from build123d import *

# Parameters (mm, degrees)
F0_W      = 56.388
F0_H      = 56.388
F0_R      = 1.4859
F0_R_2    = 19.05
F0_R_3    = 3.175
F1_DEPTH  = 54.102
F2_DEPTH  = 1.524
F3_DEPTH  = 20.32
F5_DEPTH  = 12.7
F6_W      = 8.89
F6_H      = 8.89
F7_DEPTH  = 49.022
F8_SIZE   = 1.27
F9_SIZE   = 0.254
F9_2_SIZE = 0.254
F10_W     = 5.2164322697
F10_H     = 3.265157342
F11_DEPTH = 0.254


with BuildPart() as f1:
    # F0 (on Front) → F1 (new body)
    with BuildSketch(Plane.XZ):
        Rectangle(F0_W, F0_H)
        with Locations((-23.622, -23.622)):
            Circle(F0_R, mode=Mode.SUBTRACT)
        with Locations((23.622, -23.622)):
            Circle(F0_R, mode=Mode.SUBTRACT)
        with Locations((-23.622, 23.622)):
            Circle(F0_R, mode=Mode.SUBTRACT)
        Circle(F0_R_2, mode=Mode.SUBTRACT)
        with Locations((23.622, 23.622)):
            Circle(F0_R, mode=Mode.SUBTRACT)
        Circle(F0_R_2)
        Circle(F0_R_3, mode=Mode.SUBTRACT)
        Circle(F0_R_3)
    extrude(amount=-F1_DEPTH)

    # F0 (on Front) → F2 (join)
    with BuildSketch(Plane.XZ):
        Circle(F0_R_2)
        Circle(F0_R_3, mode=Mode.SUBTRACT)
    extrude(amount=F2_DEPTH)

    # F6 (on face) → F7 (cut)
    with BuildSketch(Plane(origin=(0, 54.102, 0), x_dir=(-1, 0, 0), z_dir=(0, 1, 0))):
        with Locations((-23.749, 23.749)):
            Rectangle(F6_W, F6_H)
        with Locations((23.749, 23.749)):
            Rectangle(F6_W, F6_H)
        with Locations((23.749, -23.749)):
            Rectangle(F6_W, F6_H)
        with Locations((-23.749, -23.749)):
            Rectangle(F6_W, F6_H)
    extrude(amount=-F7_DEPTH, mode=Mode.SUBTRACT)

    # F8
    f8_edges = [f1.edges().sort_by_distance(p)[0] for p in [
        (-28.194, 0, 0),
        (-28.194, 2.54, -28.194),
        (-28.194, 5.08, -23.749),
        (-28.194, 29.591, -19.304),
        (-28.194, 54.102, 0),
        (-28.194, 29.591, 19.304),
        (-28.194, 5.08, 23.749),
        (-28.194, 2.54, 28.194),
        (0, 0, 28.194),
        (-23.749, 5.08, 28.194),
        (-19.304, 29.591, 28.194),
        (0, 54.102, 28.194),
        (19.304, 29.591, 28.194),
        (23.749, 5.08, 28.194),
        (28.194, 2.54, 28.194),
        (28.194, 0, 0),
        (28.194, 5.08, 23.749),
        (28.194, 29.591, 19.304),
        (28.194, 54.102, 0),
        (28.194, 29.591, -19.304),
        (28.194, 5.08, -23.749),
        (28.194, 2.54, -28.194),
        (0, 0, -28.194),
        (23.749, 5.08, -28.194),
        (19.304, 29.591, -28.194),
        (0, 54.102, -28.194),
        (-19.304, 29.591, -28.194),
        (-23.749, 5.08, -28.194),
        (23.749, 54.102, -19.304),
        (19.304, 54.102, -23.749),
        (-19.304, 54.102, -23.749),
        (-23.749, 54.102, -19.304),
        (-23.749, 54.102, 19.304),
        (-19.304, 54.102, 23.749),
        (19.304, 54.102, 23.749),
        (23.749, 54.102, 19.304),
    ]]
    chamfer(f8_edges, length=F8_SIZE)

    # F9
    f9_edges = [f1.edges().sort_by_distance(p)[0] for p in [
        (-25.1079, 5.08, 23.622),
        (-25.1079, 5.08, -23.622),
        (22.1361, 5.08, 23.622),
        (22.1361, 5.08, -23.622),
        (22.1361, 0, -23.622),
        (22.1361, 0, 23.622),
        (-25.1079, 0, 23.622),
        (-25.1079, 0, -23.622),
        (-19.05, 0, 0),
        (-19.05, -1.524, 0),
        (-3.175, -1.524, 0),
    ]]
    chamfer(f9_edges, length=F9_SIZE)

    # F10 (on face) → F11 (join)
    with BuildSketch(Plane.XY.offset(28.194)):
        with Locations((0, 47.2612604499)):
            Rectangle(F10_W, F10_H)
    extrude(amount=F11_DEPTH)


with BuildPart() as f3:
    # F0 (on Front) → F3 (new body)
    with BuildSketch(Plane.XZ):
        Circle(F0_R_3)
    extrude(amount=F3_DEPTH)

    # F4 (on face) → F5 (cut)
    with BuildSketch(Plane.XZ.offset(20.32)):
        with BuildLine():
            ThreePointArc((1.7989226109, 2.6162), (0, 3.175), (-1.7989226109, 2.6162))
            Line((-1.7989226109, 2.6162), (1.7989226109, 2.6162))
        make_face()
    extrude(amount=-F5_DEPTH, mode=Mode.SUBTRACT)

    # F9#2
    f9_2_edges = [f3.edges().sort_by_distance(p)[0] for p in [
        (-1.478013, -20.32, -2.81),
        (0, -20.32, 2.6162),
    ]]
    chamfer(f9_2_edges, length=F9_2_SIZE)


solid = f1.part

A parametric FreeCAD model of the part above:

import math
import FreeCAD as App
import Part
import Sketcher
Q = App.Units.Quantity


def edges_at(feature, points):
    """Names of the edges that pass closest to the given points."""
    edges = feature.Shape.Edges
    near = lambda p: min(range(len(edges)), key=lambda i: edges[i].distToShape(Part.Vertex(*p))[0])
    return sorted({f"Edge{near(p) + 1}" for p in points})


def add_polygon(sketch, points):
    """Adds a closed chain of lines whose ends are joined by coincident constraints."""
    first, n = sketch.GeometryCount, len(points)
    for a, b in zip(points, points[1:] + points[:1]):
        sketch.addGeometry(Part.LineSegment(App.Vector(*a, 0), App.Vector(*b, 0)), False)
    for i in range(n):
        sketch.addConstraint(Sketcher.Constraint("Coincident", first + i, 2, first + (i + 1) % n, 1))

doc = App.newDocument("Part")
body = doc.addObject("PartDesign::Body", "Body")

# Sketch on XZ plane
sketch1 = body.newObject("Sketcher::SketchObject", "Sketch")
sketch1.AttachmentSupport = (doc.getObject("XZ_Plane"), [""])
sketch1.MapMode = "FlatFace"
add_polygon(sketch1, [(-28.2, 28.2), (-28.2, -28.2), (28.2, -28.2), (28.2, 28.2)])  # lines 0-3
sketch1.addGeometry(Part.Circle(App.Vector(-23.6, -23.6, 0), App.Vector(0, 0, 1), 1.5), False)  # 4
sketch1.addGeometry(Part.Circle(App.Vector(23.6, -23.6, 0), App.Vector(0, 0, 1), 1.5), False)  # 5
sketch1.addGeometry(Part.Circle(App.Vector(-23.6, 23.6, 0), App.Vector(0, 0, 1), 1.5), False)  # 6
sketch1.addGeometry(Part.Circle(App.Vector(23.6, 23.6, 0), App.Vector(0, 0, 1), 1.5), False)  # 7
sketch1.addConstraint([
    Sketcher.Constraint("Vertical", 0),
    Sketcher.Constraint("Horizontal", 1),
    Sketcher.Constraint("Vertical", 2),
    Sketcher.Constraint("Horizontal", 3),
    Sketcher.Constraint("Equal", 4, 5),
    Sketcher.Constraint("Equal", 5, 6),
    Sketcher.Constraint("Equal", 6, 7),
    Sketcher.Constraint("Symmetric", 5, 3, 6, 3, -1, 1),
    Sketcher.Constraint("Symmetric", 4, 3, 7, 3, -1, 1),
    Sketcher.Constraint("Symmetric", 0, 2, 2, 2, -1, 1),
    Sketcher.Constraint("Symmetric", 4, 3, 5, 3, -2),
    Sketcher.Constraint("Equal", 3, 0),
    Sketcher.Constraint("Diameter", 4, Q("0.117 in")),
    Sketcher.Constraint("DistanceX", 1, 1, 1, 2, Q("2.22 in")),
    Sketcher.Constraint("DistanceX", 4, 3, -1, 1, Q("0.93 in")),
    Sketcher.Constraint("DistanceY", 4, 3, -1, 1, Q("0.93 in")),
])
pad1 = body.newObject("PartDesign::Pad", "Pad")
pad1.Profile = sketch1
pad1.Length = Q("2.13 in")
pad1.Reversed = True

# Sketch on XZ plane
sketch2 = body.newObject("Sketcher::SketchObject", "Sketch001")
sketch2.AttachmentSupport = (doc.getObject("XZ_Plane"), [""])
sketch2.MapMode = "FlatFace"
sketch2.addGeometry([
    Part.Circle(App.Vector(0, 0, 0), App.Vector(0, 0, 1), 19.1),
    Part.Circle(App.Vector(0, 0, 0), App.Vector(0, 0, 1), 3.2),
], False)
sketch2.addConstraint([
    Sketcher.Constraint("Coincident", 0, 3, -1, 1),
    Sketcher.Constraint("Coincident", 1, 3, -1, 1),
    Sketcher.Constraint("Diameter", 0, Q("1.5 in")),
    Sketcher.Constraint("Diameter", 1, Q("0.25 in")),
])
pad2 = body.newObject("PartDesign::Pad", "Pad001")
pad2.Profile = sketch2
pad2.Length = Q("0.06 in")

# Sketch on XZ plane
sketch3 = body.newObject("Sketcher::SketchObject", "Sketch002")
sketch3.AttachmentSupport = (doc.getObject("XZ_Plane"), [""])
sketch3.MapMode = "FlatFace"
sketch3.AttachmentOffset = App.Placement(App.Vector(0, 0, -2.13 * 25.4), App.Rotation())
add_polygon(sketch3, [(28, 28), (28, 19), (19, 19), (19, 28)])  # lines 0-3
add_polygon(sketch3, [(-19, 28), (-19, 19), (-28, 19), (-28, 28)])  # lines 4-7
add_polygon(sketch3, [(-19, -19), (-19, -28), (-28, -28), (-28, -19)])  # lines 8-11
add_polygon(sketch3, [(28, -19), (28, -28), (19, -28), (19, -19)])  # lines 12-15
sketch3.addConstraint([
    Sketcher.Constraint("Vertical", 0),
    Sketcher.Constraint("Horizontal", 1),
    Sketcher.Constraint("Vertical", 2),
    Sketcher.Constraint("Horizontal", 3),
    Sketcher.Constraint("Vertical", 4),
    Sketcher.Constraint("Horizontal", 5),
    Sketcher.Constraint("Vertical", 6),
    Sketcher.Constraint("Horizontal", 7),
    Sketcher.Constraint("Vertical", 8),
    Sketcher.Constraint("Horizontal", 9),
    Sketcher.Constraint("Vertical", 10),
    Sketcher.Constraint("Horizontal", 11),
    Sketcher.Constraint("Vertical", 12),
    Sketcher.Constraint("Horizontal", 13),
    Sketcher.Constraint("Vertical", 14),
    Sketcher.Constraint("Horizontal", 15),
    Sketcher.Constraint("Symmetric", 2, 2, 8, 2, -1, 1),
    Sketcher.Constraint("Symmetric", 0, 2, 10, 2, -1, 1),
    Sketcher.Constraint("Symmetric", 6, 2, 12, 2, -1, 1),
    Sketcher.Constraint("Symmetric", 4, 2, 14, 2, -1, 1),
    Sketcher.Constraint("Symmetric", 1, 2, 4, 2, -2),
    Sketcher.Constraint("Symmetric", 3, 2, 6, 2, -2),
    Sketcher.Constraint("Equal", 15, 0),
    Sketcher.Constraint("DistanceX", 1, 2, 1, 1, Q("0.35 in")),
    Sketcher.Constraint("DistanceX", -1, 1, 0, 2, Q("1.11 in")),
    Sketcher.Constraint("DistanceY", -1, 1, 0, 2, Q("0.76 in")),
])
pocket1 = body.newObject("PartDesign::Pocket", "Pocket")
pocket1.Profile = sketch3
pocket1.Length = Q("1.93 in")
pocket1.Reversed = True
doc.recompute()

chamfer = body.newObject("PartDesign::Chamfer", "Chamfer")
chamfer.Base = (pocket1, edges_at(pocket1, [
    (-28.194, 0, 0),
    (-28.194, 2.54, -28.194),
    (-28.194, 5.08, -23.749),
    (-28.194, 29.591, -19.304),
    (-28.194, 54.102, 0),
    (-28.194, 29.591, 19.304),
    (-28.194, 5.08, 23.749),
    (-28.194, 2.54, 28.194),
    (0, 0, 28.194),
    (-23.749, 5.08, 28.194),
    (-19.304, 29.591, 28.194),
    (0, 54.102, 28.194),
    (19.304, 29.591, 28.194),
    (23.749, 5.08, 28.194),
    (28.194, 2.54, 28.194),
    (28.194, 0, 0),
    (28.194, 5.08, 23.749),
    (28.194, 29.591, 19.304),
    (28.194, 54.102, 0),
    (28.194, 29.591, -19.304),
    (28.194, 5.08, -23.749),
    (28.194, 2.54, -28.194),
    (0, 0, -28.194),
    (23.749, 5.08, -28.194),
    (19.304, 29.591, -28.194),
    (0, 54.102, -28.194),
    (-19.304, 29.591, -28.194),
    (-23.749, 5.08, -28.194),
    (23.749, 54.102, -19.304),
    (19.304, 54.102, -23.749),
    (-19.304, 54.102, -23.749),
    (-23.749, 54.102, -19.304),
    (-23.749, 54.102, 19.304),
    (-19.304, 54.102, 23.749),
    (19.304, 54.102, 23.749),
    (23.749, 54.102, 19.304),
]))
chamfer.Size = Q("0.05 in")
doc.recompute()

chamfer2 = body.newObject("PartDesign::Chamfer", "Chamfer001")
chamfer2.Base = (chamfer, edges_at(chamfer, [
    (-25.108, 5.08, 23.622),
    (-25.108, 5.08, -23.622),
    (22.136, 5.08, 23.622),
    (22.136, 5.08, -23.622),
    (22.136, 0, -23.622),
    (22.136, 0, 23.622),
    (-25.108, 0, 23.622),
    (-25.108, 0, -23.622),
    (-19.05, 0, 0),
    (-19.05, -1.524, 0),
    (-3.175, -1.524, 0),
]))
chamfer2.Size = Q("0.01 in")

# Sketch on XY plane
sketch4 = body.newObject("Sketcher::SketchObject", "Sketch003")
sketch4.AttachmentSupport = (doc.getObject("XY_Plane"), [""])
sketch4.MapMode = "FlatFace"
sketch4.AttachmentOffset = App.Placement(App.Vector(0, 0, 1.11 * 25.4), App.Rotation())
add_polygon(sketch4, [(-2.6, 48.9), (-2.6, 45.6), (2.6, 45.6), (2.6, 48.9)])  # lines 0-3
sketch4.addConstraint([
    Sketcher.Constraint("Vertical", 0),
    Sketcher.Constraint("Horizontal", 1),
    Sketcher.Constraint("Vertical", 2),
    Sketcher.Constraint("Horizontal", 3),
    Sketcher.Constraint("DistanceX", 1, 1, 1, 2, Q("5.216432 mm")),
    Sketcher.Constraint("DistanceY", 0, 2, 0, 1, Q("3.265157 mm")),
    Sketcher.Constraint("DistanceY", -1, 1, 0, 2, Q("45.628682 mm")),
    Sketcher.Constraint("DistanceX", 0, 2, -1, 1, Q("2.608216 mm")),
])
pad3 = body.newObject("PartDesign::Pad", "Pad002")
pad3.Profile = sketch4
pad3.Length = Q("0.01 in")
body2 = doc.addObject("PartDesign::Body", "Body001")

# Sketch on XZ plane
sketch5 = body2.newObject("Sketcher::SketchObject", "Sketch004")
sketch5.AttachmentSupport = (doc.getObject("XZ_Plane001"), [""])
sketch5.MapMode = "FlatFace"
sketch5.addGeometry(Part.Circle(App.Vector(0, 0, 0), App.Vector(0, 0, 1), 3.2), False)
sketch5.addConstraint([
    Sketcher.Constraint("Coincident", 0, 3, -1, 1),
    Sketcher.Constraint("Diameter", 0, Q("0.25 in")),
])
pad4 = body2.newObject("PartDesign::Pad", "Pad003")
pad4.Profile = sketch5
pad4.Length = Q("0.8 in")

# Sketch on XZ plane
sketch6 = body2.newObject("Sketcher::SketchObject", "Sketch005")
sketch6.AttachmentSupport = (doc.getObject("XZ_Plane001"), [""])
sketch6.MapMode = "FlatFace"
sketch6.AttachmentOffset = App.Placement(App.Vector(0, 0, 0.8 * 25.4), App.Rotation())
sketch6.addGeometry([
    Part.ArcOfCircle(Part.Circle(App.Vector(0, 0, 0), App.Vector(0, 0, 1), 3.2), math.radians(55), math.radians(125)),
    Part.LineSegment(App.Vector(-1.8, 2.6, 0), App.Vector(1.8, 2.6, 0)),
], False)
sketch6.addConstraint([
    Sketcher.Constraint("Coincident", 0, 1, 1, 2),
    Sketcher.Constraint("Coincident", 1, 1, 0, 2),
    Sketcher.Constraint("Horizontal", 1),
    Sketcher.Constraint("Coincident", 0, 3, -1, 1),
    Sketcher.Constraint("Radius", 0, Q("0.125 in")),
    Sketcher.Constraint("DistanceY", -1, 1, 0, 1, Q("0.103 in")),
])
pocket2 = body2.newObject("PartDesign::Pocket", "Pocket001")
pocket2.Profile = sketch6
pocket2.Length = Q("0.5 in")
doc.recompute()

chamfer3 = body2.newObject("PartDesign::Chamfer", "Chamfer002")
chamfer3.Base = (pocket2, edges_at(pocket2, [(-1.478, -20.32, -2.81), (0, -20.32, 2.616)]))
chamfer3.Size = Q("0.01 in")
body2.Visibility = False

doc.recompute()
